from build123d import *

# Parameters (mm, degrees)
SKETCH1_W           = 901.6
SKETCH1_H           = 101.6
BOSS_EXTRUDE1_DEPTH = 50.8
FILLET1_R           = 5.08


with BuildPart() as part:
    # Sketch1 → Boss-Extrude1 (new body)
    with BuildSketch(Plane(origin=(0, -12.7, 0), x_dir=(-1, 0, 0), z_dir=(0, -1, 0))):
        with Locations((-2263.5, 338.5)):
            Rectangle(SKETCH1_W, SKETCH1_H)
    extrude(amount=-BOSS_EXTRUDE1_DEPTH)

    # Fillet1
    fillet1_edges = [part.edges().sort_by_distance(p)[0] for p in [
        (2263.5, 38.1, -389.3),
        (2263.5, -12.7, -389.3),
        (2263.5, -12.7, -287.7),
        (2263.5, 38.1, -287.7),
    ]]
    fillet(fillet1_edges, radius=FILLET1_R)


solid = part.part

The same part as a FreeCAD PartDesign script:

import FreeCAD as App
import Part
import Sketcher
Q = App.Units.Quantity


def edges_at(feature, points):
    """Names of the edges that pass closest to the given points."""
    edges = feature.Shape.Edges
    near = lambda p: min(range(len(edges)), key=lambda i: edges[i].distToShape(Part.Vertex(*p))[0])
    return sorted({f"Edge{near(p) + 1}" for p in points})


def add_polygon(sketch, points):
    """Adds a closed chain of lines whose ends are joined by coincident constraints."""
    first, n = sketch.GeometryCount, len(points)
    for a, b in zip(points, points[1:] + points[:1]):
        sketch.addGeometry(Part.LineSegment(App.Vector(*a, 0), App.Vector(*b, 0)), False)
    for i in range(n):
        sketch.addConstraint(Sketcher.Constraint("Coincident", first + i, 2, first + (i + 1) % n, 1))

doc = App.newDocument("Part")
body = doc.addObject("PartDesign::Body", "Body")

# Sketch on XZ plane
sketch1 = doc.addObject("Sketcher::SketchObject", "Sketch")
body.addObject(sketch1)
sketch1.AttachmentSupport = (doc.XZ_Plane, [""])
sketch1.MapMode = "FlatFace"
sketch1.AttachmentOffset = App.Placement(App.Vector(0, 0, 0.5 * 25.4), App.Rotation())
add_polygon(sketch1, [(2714, -389), (2714, -288), (1813, -288), (1813, -389)])  # lines 0-3
sketch1.addConstraint([
    Sketcher.Constraint("Vertical", 0),
    Sketcher.Constraint("Horizontal", 1),
    Sketcher.Constraint("Vertical", 2),
    Sketcher.Constraint("Horizontal", 3),
    Sketcher.Constraint("DistanceY", 0, 1, 0, 2, Q("4 in")),
    Sketcher.Constraint("DistanceX", 1, 2, 1, 1, 901.6),
    Sketcher.Constraint("DistanceX", -1, 1, 0, 2, 2714.3),
    Sketcher.Constraint("DistanceY", 0, 2, -1, 1, 287.7),
])
pad1 = doc.addObject("PartDesign::Pad", "Pad")
body.addObject(pad1)
pad1.Profile = sketch1
pad1.Length = Q("2 in")
pad1.Reversed = True
doc.recompute()

fillet = doc.addObject("PartDesign::Fillet", "Fillet")
body.addObject(fillet)
fillet.Base = (pad1, edges_at(pad1, [
    (2263.5, 38.1, -389.3),
    (2263.5, -12.7, -389.3),
    (2263.5, -12.7, -287.7),
    (2263.5, 38.1, -287.7),
]))
fillet.Radius = Q("0.2 in")

doc.recompute()
